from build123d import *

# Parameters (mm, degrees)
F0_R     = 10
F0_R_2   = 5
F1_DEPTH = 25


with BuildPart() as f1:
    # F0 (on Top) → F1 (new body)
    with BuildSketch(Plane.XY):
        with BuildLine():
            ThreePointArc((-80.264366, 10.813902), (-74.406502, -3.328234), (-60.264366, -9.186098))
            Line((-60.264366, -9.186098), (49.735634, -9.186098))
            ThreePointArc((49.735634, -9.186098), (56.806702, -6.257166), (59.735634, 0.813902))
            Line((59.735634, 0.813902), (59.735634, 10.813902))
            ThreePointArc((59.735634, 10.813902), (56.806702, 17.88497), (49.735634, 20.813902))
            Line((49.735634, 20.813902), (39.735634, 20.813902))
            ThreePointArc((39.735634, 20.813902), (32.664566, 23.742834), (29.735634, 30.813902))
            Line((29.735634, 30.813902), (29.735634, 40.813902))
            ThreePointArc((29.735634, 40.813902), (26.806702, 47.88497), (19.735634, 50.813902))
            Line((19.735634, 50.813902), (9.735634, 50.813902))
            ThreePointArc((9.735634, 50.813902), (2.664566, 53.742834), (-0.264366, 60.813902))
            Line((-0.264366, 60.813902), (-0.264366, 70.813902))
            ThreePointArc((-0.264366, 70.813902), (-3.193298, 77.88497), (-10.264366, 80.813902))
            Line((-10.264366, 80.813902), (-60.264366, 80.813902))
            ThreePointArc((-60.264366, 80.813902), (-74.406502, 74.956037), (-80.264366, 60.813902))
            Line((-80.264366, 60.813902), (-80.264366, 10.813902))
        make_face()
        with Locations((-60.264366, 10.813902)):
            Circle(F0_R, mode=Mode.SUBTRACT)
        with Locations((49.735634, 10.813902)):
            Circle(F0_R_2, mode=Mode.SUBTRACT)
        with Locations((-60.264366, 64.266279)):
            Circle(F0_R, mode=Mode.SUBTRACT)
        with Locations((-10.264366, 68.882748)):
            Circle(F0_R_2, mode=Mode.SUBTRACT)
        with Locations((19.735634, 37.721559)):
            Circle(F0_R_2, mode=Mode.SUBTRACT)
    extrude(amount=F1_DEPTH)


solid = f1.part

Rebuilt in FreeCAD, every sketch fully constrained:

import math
import FreeCAD as App
import Part
import Sketcher

V = App.Vector
Q = App.Units.Quantity

doc = App.newDocument("Part")
body = doc.addObject("PartDesign::Body", "Body")

# Sketch on XY plane
sketch1 = body.newObject("Sketcher::SketchObject", "Sketch")
sketch1.AttachmentSupport = (doc.getObject("XY_Plane"), [""])
sketch1.MapMode = "FlatFace"
sketch1.addGeometry([
    Part.ArcOfCircle(Part.Circle(V(-60.264367, 10.813901, 0), V(0, 0, 1), 19.999999), math.radians(179.999996), math.radians(270.000004)),  # 0
    Part.LineSegment(V(-60.264366, -9.186098, 0), V(49.735634, -9.186098, 0)),  # 1
    Part.ArcOfCircle(Part.Circle(V(49.735635, 0.813901, 0), V(0, 0, 1), 9.999999), math.radians(-90.000004), math.radians(0.000004)),  # 2
    Part.LineSegment(V(59.735634, 0.813902, 0), V(59.735634, 10.813902, 0)),  # 3
    Part.ArcOfCircle(Part.Circle(V(49.735635, 10.813903, 0), V(0, 0, 1), 9.999999), math.radians(-0.000004), math.radians(90.000004)),  # 4
    Part.LineSegment(V(49.735634, 20.813902, 0), V(39.735634, 20.813902, 0)),  # 5
    Part.ArcOfCircle(Part.Circle(V(39.735633, 30.813901, 0), V(0, 0, 1), 9.999999), math.radians(179.999996), math.radians(270.000004)),  # 6
    Part.LineSegment(V(29.735634, 30.813902, 0), V(29.735634, 40.813902, 0)),  # 7
    Part.ArcOfCircle(Part.Circle(V(19.735635, 40.813903, 0), V(0, 0, 1), 9.999999), math.radians(-0.000004), math.radians(90.000004)),  # 8
    Part.LineSegment(V(19.735634, 50.813902, 0), V(9.735634, 50.813902, 0)),  # 9
    Part.ArcOfCircle(Part.Circle(V(9.735633, 60.813901, 0), V(0, 0, 1), 9.999999), math.radians(179.999996), math.radians(270.000004)),  # 10
    Part.LineSegment(V(-0.264366, 60.813902, 0), V(-0.264366, 70.813902, 0)),  # 11
    Part.ArcOfCircle(Part.Circle(V(-10.264365, 70.813903, 0), V(0, 0, 1), 9.999999), math.radians(-0.000004), math.radians(90.000004)),  # 12
    Part.LineSegment(V(-10.264366, 80.813902, 0), V(-60.264366, 80.813902, 0)),  # 13
    Part.ArcOfCircle(Part.Circle(V(-60.264366, 60.813902, 0), V(0, 0, 1), 20), math.radians(90.000001), math.radians(179.999999)),  # 14
    Part.LineSegment(V(-80.264366, 60.813902, 0), V(-80.264366, 10.813902, 0)),  # 15
    Part.Circle(V(-60.264366, 10.813902, 0), V(0, 0, 1), 10),  # 16
    Part.Circle(V(49.735634, 10.813902, 0), V(0, 0, 1), 5),  # 17
    Part.Circle(V(-60.264366, 64.266279, 0), V(0, 0, 1), 10),  # 18
    Part.Circle(V(-10.264366, 68.882748, 0), V(0, 0, 1), 5),  # 19
    Part.Circle(V(19.735634, 37.721559, 0), V(0, 0, 1), 5),  # 20
], False)
sketch1.addConstraint([
    Sketcher.Constraint("Tangent", 0, 2, 1, 1),
    Sketcher.Constraint("Tangent", 1, 2, 2, 1),
    Sketcher.Constraint("Tangent", 2, 2, 3, 1),
    Sketcher.Constraint("Tangent", 3, 2, 4, 1),
    Sketcher.Constraint("Tangent", 4, 2, 5, 1),
    Sketcher.Constraint("Tangent", 5, 2, 6, 2),
    Sketcher.Constraint("Tangent", 6, 1, 7, 1),
    Sketcher.Constraint("Tangent", 7, 2, 8, 1),
    Sketcher.Constraint("Tangent", 8, 2, 9, 1),
    Sketcher.Constraint("Tangent", 9, 2, 10, 2),
    Sketcher.Constraint("Tangent", 10, 1, 11, 1),
    Sketcher.Constraint("Tangent", 11, 2, 12, 1),
    Sketcher.Constraint("Tangent", 12, 2, 13, 1),
    Sketcher.Constraint("Tangent", 13, 2, 14, 1),
    Sketcher.Constraint("Tangent", 14, 2, 15, 1),
    Sketcher.Constraint("Tangent", 15, 2, 0, 1),
    Sketcher.Constraint("Horizontal", 1),
    Sketcher.Constraint("Vertical", 3),
    Sketcher.Constraint("Horizontal", 5),
    Sketcher.Constraint("Vertical", 7),
    Sketcher.Constraint("Horizontal", 9),
    Sketcher.Constraint("Vertical", 11),
    Sketcher.Constraint("Horizontal", 13),
    Sketcher.Constraint("Vertical", 15),
    Sketcher.Constraint("Coincident", 16, 3, 0, 3),
    Sketcher.Constraint("Coincident", 17, 3, 4, 3),
    Sketcher.Constraint("Equal", 2, 4),
    Sketcher.Constraint("Equal", 4, 6),
    Sketcher.Constraint("Equal", 6, 8),
    Sketcher.Constraint("Equal", 8, 10),
    Sketcher.Constraint("Equal", 10, 12),
    Sketcher.Constraint("Equal", 0, 14),
    Sketcher.Constraint("Equal", 12, 16),
    Sketcher.Constraint("Equal", 16, 18),
    Sketcher.Constraint("Equal", 17, 19),
    Sketcher.Constraint("Equal", 19, 20),
    Sketcher.Constraint("Horizontal", 0, 3, 4, 3),
    Sketcher.Constraint("Horizontal", 10, 3, 14, 3),
    Sketcher.Constraint("Vertical", 16, 3, 18, 3),
    Sketcher.Constraint("Vertical", 12, 3, 19, 3),
    Sketcher.Constraint("Vertical", 8, 3, 20, 3),
    Sketcher.Constraint("Equal", 5, 9),
    Sketcher.Constraint("Equal", 9, 3),
    Sketcher.Constraint("Equal", 3, 7),
    Sketcher.Constraint("Equal", 13, 15),
    Sketcher.Constraint("Diameter", 16, Q("20 mm")),
    Sketcher.Constraint("Diameter", 17, Q("10 mm")),
    Sketcher.Constraint("Radius", 0, Q("19.999999 mm")),
    Sketcher.Constraint("DistanceY", -1, 1, 0, 3, Q("10.813901 mm")),
    Sketcher.Constraint("DistanceY", -1, 1, 18, 3, Q("64.266279 mm")),
    Sketcher.Constraint("DistanceY", -1, 1, 19, 3, Q("68.882748 mm")),
    Sketcher.Constraint("DistanceY", -1, 1, 20, 3, Q("37.721559 mm")),
    Sketcher.Constraint("DistanceX", 0, 3, -1, 1, Q("60.264367 mm")),
])
pad1 = body.newObject("PartDesign::Pad", "Pad")
pad1.Profile = sketch1
pad1.Length = 25

doc.recompute()
